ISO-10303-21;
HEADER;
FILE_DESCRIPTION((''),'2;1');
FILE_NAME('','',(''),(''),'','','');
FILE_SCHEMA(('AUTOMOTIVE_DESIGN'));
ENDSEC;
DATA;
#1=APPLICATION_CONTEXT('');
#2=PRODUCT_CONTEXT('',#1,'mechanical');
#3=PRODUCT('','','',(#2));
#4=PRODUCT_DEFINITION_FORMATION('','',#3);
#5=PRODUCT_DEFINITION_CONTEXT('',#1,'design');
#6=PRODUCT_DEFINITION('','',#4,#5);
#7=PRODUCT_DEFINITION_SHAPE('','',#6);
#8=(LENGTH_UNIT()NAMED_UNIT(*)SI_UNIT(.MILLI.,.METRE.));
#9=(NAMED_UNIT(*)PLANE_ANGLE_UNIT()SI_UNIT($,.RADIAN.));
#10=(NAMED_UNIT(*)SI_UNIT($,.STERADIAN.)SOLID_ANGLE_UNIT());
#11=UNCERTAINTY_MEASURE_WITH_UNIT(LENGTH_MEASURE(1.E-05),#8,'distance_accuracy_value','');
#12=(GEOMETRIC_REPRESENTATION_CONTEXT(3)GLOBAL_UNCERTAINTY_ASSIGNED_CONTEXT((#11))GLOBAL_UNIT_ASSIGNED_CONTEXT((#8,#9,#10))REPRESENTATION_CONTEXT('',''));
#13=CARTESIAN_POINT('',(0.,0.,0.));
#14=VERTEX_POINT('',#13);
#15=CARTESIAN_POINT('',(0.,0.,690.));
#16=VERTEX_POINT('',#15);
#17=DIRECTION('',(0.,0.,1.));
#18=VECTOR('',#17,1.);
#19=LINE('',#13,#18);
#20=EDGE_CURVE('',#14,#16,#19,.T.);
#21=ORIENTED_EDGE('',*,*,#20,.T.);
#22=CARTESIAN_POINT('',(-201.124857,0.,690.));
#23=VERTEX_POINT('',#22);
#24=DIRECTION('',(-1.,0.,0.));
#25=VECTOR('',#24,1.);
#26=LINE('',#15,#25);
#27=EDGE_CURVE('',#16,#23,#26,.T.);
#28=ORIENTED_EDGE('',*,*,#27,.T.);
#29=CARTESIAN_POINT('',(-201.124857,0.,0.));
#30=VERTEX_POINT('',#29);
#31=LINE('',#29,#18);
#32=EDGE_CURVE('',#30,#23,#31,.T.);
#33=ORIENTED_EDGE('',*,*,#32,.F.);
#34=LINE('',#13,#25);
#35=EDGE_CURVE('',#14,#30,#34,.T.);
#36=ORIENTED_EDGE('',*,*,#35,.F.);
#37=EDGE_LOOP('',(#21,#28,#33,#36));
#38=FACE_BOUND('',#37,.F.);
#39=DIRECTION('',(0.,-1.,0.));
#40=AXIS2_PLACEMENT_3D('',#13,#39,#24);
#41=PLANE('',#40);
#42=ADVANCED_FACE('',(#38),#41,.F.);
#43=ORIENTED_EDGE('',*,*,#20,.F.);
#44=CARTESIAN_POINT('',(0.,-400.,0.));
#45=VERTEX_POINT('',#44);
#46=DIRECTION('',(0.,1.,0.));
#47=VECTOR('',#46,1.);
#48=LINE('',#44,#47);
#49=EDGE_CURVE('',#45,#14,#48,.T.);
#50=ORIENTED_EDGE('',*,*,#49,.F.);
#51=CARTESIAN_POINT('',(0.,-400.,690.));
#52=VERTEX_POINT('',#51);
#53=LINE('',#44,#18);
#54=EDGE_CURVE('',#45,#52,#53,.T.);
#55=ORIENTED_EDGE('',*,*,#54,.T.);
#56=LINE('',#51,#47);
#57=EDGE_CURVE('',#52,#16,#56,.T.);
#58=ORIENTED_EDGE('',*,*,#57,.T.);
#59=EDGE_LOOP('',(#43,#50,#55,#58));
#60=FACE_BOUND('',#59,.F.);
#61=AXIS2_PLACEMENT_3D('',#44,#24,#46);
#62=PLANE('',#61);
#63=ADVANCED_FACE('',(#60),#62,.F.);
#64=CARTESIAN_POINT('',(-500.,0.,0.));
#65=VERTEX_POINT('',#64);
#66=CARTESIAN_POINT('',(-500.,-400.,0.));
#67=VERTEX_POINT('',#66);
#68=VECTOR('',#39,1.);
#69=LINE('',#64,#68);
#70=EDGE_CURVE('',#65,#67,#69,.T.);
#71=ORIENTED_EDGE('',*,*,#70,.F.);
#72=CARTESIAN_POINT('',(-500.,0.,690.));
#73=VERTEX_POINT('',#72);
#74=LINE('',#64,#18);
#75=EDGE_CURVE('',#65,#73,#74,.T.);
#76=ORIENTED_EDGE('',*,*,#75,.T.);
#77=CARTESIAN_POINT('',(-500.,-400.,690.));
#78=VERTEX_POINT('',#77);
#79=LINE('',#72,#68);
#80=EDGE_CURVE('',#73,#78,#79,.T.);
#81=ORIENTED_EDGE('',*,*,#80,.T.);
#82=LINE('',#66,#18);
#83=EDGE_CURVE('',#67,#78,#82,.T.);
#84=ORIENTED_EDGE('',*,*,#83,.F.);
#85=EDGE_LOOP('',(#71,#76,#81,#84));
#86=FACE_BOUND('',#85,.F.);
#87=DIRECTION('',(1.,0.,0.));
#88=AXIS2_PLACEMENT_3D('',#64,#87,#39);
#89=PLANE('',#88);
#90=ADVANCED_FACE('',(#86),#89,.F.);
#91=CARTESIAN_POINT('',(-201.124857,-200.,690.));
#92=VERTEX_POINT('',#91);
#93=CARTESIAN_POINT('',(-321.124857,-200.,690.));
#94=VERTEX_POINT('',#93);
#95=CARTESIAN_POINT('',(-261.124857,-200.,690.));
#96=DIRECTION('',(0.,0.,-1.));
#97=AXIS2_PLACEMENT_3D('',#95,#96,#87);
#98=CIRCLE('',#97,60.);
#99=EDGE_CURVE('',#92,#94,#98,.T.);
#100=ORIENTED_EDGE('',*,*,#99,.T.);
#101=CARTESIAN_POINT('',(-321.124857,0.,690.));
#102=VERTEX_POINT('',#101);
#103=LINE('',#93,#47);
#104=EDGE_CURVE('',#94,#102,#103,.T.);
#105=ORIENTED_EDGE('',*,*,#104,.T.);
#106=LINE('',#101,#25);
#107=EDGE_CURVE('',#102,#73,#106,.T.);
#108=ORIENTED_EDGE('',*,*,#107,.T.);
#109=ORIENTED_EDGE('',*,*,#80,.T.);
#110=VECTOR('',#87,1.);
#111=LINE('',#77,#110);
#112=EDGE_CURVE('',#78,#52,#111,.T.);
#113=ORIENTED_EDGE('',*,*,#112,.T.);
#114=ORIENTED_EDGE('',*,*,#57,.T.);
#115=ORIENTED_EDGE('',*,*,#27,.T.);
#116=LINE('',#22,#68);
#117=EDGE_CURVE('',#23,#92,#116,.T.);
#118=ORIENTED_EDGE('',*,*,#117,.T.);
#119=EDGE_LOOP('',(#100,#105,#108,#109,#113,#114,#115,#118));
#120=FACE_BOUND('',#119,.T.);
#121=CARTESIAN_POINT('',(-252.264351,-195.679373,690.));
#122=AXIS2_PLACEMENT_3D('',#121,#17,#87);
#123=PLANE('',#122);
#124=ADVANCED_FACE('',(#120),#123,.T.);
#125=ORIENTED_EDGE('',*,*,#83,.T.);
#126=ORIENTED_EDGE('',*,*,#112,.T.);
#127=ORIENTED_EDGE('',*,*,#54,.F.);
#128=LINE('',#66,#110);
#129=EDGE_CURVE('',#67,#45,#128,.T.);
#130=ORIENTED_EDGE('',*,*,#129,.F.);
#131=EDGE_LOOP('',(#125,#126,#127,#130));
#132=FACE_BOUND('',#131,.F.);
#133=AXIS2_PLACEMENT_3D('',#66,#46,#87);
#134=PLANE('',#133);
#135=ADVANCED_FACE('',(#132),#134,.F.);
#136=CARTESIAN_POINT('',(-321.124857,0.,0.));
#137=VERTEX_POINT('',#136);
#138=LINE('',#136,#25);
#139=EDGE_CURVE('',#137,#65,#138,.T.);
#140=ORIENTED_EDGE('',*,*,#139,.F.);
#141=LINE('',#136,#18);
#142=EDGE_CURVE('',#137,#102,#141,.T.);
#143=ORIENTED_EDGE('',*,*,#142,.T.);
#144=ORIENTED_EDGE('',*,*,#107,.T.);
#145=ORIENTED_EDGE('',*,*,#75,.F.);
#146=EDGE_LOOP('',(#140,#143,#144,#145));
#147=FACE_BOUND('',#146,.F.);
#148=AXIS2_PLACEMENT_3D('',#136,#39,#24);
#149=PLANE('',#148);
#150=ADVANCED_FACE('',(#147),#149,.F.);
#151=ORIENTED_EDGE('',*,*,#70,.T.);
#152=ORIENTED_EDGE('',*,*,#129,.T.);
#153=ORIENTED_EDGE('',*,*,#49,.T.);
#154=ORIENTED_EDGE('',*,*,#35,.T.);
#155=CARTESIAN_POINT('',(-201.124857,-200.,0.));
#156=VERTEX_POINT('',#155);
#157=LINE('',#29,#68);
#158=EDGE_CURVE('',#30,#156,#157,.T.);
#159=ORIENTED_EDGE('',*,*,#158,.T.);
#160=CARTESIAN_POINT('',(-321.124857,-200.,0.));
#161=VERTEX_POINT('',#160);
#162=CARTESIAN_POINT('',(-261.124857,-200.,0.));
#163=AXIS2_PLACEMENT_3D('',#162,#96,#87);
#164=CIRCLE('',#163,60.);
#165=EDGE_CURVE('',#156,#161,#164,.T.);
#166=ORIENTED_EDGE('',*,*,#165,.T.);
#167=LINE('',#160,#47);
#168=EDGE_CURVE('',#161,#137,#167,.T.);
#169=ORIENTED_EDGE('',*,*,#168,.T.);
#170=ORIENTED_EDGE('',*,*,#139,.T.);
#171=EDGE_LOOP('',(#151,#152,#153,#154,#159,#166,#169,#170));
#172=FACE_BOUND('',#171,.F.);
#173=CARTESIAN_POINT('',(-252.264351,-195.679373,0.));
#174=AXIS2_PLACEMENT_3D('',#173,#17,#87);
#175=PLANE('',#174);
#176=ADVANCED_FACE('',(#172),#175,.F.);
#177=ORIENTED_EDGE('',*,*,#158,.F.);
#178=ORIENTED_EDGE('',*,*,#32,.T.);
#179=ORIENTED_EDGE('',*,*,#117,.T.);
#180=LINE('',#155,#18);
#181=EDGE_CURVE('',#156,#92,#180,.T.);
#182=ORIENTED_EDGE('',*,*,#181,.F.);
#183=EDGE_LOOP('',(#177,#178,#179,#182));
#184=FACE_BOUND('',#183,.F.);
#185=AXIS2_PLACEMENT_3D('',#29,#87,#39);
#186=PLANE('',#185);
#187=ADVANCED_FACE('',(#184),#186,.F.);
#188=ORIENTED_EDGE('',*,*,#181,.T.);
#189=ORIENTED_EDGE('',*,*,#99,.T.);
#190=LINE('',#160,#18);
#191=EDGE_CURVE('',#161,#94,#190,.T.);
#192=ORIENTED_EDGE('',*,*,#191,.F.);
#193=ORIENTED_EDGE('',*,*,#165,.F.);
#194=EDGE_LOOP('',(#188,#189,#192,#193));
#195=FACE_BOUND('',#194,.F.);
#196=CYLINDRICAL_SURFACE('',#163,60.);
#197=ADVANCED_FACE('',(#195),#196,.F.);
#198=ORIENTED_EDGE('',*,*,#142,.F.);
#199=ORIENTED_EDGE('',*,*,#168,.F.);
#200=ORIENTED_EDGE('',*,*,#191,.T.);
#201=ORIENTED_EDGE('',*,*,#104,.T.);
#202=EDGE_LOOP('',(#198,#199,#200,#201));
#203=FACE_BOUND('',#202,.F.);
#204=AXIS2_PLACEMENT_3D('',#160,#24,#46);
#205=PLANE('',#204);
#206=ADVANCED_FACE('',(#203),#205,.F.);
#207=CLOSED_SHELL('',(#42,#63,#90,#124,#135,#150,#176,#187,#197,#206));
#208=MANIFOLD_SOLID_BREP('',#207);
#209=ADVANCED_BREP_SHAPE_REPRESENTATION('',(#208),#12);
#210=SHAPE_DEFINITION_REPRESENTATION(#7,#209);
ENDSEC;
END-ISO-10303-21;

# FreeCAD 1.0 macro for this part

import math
import FreeCAD as App
import Part
import Sketcher
from FreeCAD import Vector

doc = App.newDocument("Part")
params = doc.addObject("Spreadsheet::Sheet", "Params")
for row, (alias, value) in enumerate([
    ("sketch1_radius", "60 mm"),
    ("sketch1_width", "500 mm"),
    ("sketch1_height", "400 mm"),
    ("sketch1_height2", "200 mm"),
    ("pad1_length", "690 mm"),
], start=1):
    params.set(f"A{row}", alias)
    params.set(f"B{row}", "=" + value)
    params.setAlias(f"B{row}", alias)

body = doc.addObject("PartDesign::Body", "Body")

# Sketch on XY plane
sketch1 = doc.addObject("Sketcher::SketchObject", "Sketch")
body.addObject(sketch1)
sketch1.AttachmentSupport = (doc.XY_Plane, [""])
sketch1.MapMode = "FlatFace"
sketch1.addGeometry([
    Part.LineSegment(Vector(-500, -400, 0), Vector(0, -400, 0)),  # 0
    Part.LineSegment(Vector(0, -400, 0), Vector(0, 0, 0)),  # 1
    Part.LineSegment(Vector(0, 0, 0), Vector(-201.124857, 0, 0)),  # 2
    Part.LineSegment(Vector(-201.124857, 0, 0), Vector(-201.124857, -200, 0)),  # 3
    Part.ArcOfCircle(Part.Circle(Vector(-261.124857, -200, 0), Vector(0, 0, 1), 60), math.radians(180), math.radians(360)),  # 4
    Part.LineSegment(Vector(-321.124857, -200, 0), Vector(-321.124857, 0, 0)),  # 5
    Part.LineSegment(Vector(-321.124857, 0, 0), Vector(-500, 0, 0)),  # 6
    Part.LineSegment(Vector(-500, 0, 0), Vector(-500, -400, 0)),  # 7
], False)
sketch1.addConstraint([
    Sketcher.Constraint("Coincident", 0, 2, 1, 1),
    Sketcher.Constraint("Coincident", 1, 2, 2, 1),
    Sketcher.Constraint("Coincident", 2, 2, 3, 1),
    Sketcher.Constraint("Tangent", 3, 2, 4, 2),
    Sketcher.Constraint("Tangent", 4, 1, 5, 1),
    Sketcher.Constraint("Coincident", 5, 2, 6, 1),
    Sketcher.Constraint("Coincident", 6, 2, 7, 1),
    Sketcher.Constraint("Coincident", 7, 2, 0, 1),
    Sketcher.Constraint("Horizontal", 0),
    Sketcher.Constraint("Vertical", 1),
    Sketcher.Constraint("Horizontal", 2),
    Sketcher.Constraint("Vertical", 3),
    Sketcher.Constraint("Vertical", 5),
    Sketcher.Constraint("Horizontal", 6),
    Sketcher.Constraint("Vertical", 7),
    Sketcher.Constraint("Coincident", 1, 2, -1, 1),
    Sketcher.Constraint("PointOnObject", 5, 2, -1),
    Sketcher.Constraint("Radius", 4, 60.0),
    Sketcher.Constraint("DistanceX", 0, 1, 0, 2, 500.0),
    Sketcher.Constraint("DistanceY", 1, 1, 1, 2, 400.0),
    Sketcher.Constraint("DistanceY", 3, 2, 3, 1, 200.0),
    Sketcher.Constraint("DistanceX", 2, 2, 2, 1, 201.124857),
])
sketch1.setExpression("Constraints[17]", "Params.sketch1_radius")
sketch1.setExpression("Constraints[18]", "Params.sketch1_width")
sketch1.setExpression("Constraints[19]", "Params.sketch1_height")
sketch1.setExpression("Constraints[20]", "Params.sketch1_height2")
pad1 = doc.addObject("PartDesign::Pad", "Pad")
body.addObject(pad1)
pad1.Profile = sketch1
pad1.setExpression("Length", "Params.pad1_length")

doc.recompute()
